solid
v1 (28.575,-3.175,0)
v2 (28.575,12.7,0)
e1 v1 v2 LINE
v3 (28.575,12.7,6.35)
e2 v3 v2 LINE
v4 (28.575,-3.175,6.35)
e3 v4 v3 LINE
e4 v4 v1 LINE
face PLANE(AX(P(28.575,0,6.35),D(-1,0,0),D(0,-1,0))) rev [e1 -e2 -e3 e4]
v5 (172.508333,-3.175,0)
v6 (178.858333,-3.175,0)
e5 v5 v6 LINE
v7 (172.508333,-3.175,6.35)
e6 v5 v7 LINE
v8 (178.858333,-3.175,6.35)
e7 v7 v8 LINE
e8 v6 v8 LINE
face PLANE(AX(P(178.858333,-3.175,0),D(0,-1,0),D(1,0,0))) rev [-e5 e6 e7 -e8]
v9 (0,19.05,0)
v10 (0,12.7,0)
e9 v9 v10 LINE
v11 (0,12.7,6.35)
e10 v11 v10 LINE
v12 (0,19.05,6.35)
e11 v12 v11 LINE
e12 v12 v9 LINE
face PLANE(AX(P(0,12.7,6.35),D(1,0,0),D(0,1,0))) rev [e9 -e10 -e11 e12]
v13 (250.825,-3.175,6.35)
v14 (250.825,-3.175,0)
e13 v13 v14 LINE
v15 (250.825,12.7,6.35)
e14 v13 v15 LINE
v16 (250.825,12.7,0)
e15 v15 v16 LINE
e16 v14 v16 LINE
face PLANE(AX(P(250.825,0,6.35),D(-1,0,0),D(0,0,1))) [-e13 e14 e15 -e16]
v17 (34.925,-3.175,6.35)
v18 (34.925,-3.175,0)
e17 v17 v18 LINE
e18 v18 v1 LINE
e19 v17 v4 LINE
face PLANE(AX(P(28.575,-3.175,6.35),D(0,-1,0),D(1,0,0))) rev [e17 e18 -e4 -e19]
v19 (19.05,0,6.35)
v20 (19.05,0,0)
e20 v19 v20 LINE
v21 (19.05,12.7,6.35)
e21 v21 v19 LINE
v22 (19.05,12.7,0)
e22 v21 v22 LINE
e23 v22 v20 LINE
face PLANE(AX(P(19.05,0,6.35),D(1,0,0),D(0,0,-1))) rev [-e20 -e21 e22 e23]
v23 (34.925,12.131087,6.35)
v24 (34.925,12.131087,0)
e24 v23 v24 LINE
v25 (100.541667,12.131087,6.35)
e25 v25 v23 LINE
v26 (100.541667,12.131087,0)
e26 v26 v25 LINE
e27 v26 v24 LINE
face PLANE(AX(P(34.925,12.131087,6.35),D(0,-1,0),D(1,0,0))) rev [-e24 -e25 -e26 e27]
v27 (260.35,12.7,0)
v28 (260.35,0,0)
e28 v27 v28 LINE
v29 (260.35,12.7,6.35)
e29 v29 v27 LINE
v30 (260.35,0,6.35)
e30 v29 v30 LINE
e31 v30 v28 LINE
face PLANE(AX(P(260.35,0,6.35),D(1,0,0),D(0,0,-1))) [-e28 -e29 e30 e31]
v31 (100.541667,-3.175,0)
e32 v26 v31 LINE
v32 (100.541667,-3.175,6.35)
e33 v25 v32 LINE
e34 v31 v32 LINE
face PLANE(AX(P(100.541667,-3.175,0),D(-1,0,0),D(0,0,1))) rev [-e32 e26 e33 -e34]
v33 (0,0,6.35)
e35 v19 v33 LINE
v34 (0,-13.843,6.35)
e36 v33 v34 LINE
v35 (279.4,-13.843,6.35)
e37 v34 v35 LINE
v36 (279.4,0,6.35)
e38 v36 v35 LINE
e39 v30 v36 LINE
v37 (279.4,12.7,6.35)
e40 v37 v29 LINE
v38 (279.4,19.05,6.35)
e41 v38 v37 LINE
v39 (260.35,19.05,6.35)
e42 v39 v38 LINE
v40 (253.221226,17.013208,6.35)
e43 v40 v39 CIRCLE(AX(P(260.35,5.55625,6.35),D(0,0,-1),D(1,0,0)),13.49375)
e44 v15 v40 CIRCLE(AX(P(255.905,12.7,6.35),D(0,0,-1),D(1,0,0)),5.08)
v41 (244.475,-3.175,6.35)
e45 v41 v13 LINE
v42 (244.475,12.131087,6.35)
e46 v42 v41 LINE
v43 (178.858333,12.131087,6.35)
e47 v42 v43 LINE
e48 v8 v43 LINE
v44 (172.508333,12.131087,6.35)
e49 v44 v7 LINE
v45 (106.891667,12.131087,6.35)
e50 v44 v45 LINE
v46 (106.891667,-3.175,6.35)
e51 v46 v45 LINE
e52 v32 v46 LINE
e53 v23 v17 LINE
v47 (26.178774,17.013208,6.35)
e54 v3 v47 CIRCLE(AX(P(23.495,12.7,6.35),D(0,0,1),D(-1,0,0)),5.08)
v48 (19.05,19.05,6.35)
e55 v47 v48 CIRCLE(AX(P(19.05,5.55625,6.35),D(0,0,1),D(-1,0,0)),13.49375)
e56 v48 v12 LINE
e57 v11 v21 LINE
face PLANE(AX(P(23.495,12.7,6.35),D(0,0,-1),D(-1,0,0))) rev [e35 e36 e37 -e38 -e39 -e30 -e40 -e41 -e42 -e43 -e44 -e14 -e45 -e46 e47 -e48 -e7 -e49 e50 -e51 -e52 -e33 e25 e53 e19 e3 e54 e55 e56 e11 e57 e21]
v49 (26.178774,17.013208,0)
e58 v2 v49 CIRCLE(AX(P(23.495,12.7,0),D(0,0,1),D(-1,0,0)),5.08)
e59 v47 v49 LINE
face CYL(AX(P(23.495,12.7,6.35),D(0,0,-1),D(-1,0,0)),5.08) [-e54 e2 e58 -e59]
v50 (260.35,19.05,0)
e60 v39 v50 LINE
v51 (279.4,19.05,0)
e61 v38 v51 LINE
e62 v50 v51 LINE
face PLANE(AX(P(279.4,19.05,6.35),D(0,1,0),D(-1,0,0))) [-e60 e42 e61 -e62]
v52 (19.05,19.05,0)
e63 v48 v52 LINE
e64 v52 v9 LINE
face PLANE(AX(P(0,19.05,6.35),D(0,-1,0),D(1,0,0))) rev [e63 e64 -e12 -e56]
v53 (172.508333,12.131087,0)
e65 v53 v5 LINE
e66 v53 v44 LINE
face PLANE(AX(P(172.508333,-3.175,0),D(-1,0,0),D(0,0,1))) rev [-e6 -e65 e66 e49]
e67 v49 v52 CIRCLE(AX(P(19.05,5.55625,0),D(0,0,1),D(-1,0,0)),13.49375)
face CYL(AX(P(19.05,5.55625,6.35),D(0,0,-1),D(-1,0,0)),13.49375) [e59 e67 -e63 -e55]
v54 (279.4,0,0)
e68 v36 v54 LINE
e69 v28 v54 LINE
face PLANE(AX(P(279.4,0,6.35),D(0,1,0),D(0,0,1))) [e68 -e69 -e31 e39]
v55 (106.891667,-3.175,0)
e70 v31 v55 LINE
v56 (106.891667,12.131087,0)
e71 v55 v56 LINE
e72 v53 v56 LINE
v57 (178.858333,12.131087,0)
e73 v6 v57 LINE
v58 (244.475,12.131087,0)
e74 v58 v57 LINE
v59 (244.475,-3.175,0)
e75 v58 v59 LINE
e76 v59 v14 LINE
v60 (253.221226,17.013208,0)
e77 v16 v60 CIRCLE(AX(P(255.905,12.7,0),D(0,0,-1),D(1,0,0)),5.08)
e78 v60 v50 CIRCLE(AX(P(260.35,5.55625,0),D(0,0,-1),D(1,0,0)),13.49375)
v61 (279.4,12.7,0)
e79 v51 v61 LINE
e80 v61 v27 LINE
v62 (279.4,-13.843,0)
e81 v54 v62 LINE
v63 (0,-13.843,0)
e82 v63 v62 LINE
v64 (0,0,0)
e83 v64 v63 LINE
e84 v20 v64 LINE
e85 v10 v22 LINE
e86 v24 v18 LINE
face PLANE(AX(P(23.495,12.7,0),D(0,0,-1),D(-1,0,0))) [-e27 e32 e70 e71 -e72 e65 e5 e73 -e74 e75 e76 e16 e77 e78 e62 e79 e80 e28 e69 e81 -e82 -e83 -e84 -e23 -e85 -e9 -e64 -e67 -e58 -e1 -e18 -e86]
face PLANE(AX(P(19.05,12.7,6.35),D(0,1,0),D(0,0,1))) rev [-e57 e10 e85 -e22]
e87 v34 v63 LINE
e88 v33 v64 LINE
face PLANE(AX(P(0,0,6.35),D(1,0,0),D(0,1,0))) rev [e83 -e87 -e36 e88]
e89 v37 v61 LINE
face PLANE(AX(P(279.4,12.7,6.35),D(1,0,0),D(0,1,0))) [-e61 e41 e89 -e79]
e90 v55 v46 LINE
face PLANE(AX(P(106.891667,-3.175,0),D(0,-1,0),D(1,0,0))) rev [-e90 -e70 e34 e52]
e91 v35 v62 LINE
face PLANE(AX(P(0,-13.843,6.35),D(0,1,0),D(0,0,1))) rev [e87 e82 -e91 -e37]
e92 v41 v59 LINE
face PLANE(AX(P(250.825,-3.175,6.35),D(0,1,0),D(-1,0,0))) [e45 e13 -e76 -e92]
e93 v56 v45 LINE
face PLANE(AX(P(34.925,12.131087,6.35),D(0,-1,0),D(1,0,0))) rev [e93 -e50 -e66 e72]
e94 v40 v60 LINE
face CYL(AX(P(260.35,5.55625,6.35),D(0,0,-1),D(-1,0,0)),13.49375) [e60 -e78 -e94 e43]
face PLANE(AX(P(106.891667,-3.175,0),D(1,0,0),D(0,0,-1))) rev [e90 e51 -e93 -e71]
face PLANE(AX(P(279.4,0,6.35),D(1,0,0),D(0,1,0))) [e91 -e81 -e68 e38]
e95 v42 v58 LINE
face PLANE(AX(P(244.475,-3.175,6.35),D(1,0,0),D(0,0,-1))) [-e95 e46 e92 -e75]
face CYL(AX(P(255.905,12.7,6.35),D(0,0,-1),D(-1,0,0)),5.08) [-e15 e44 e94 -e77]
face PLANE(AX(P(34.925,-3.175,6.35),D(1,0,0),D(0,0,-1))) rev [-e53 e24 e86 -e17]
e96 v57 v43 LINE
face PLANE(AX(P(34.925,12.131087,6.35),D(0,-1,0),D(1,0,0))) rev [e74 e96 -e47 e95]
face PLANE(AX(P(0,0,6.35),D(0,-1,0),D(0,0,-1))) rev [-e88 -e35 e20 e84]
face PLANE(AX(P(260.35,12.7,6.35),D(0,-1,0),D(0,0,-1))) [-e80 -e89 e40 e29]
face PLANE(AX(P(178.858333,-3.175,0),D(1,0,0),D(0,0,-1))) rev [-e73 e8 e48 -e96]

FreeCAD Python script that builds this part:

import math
import FreeCAD as App
import Part
import Sketcher
from FreeCAD import Vector
Q = App.Units.Quantity


def add_polygon(sketch, points):
    """Adds a closed chain of lines whose ends are joined by coincident constraints."""
    first, n = sketch.GeometryCount, len(points)
    for a, b in zip(points, points[1:] + points[:1]):
        sketch.addGeometry(Part.LineSegment(App.Vector(*a, 0), App.Vector(*b, 0)), False)
    for i in range(n):
        sketch.addConstraint(Sketcher.Constraint("Coincident", first + i, 2, first + (i + 1) % n, 1))

doc = App.newDocument("Part")
body = doc.addObject("PartDesign::Body", "Body")

# Sketch on XY plane
sketch1 = doc.addObject("Sketcher::SketchObject", "Sketch")
body.addObject(sketch1)
sketch1.AttachmentSupport = (doc.XY_Plane, [""])
sketch1.MapMode = "FlatFace"
sketch1.addGeometry([
    Part.LineSegment(Vector(19.05, 0, 0), Vector(0, 0, 0)),  # 0
    Part.LineSegment(Vector(0, 0, 0), Vector(0, -13.843, 0)),  # 1
    Part.LineSegment(Vector(0, -13.843, 0), Vector(139.7, -13.843, 0)),  # 2
    Part.LineSegment(Vector(139.7, -13.843, 0), Vector(139.7, 12.131087, 0)),  # 3
    Part.LineSegment(Vector(139.7, 12.131087, 0), Vector(34.925, 12.131087, 0)),  # 4
    Part.LineSegment(Vector(34.925, 12.131087, 0), Vector(34.925, -3.175, 0)),  # 5
    Part.LineSegment(Vector(34.925, -3.175, 0), Vector(28.575, -3.175, 0)),  # 6
    Part.LineSegment(Vector(28.575, -3.175, 0), Vector(28.575, 12.7, 0)),  # 7
    Part.ArcOfCircle(Part.Circle(Vector(23.495, 12.7, 0), Vector(0, 0, 1), 5.08), math.radians(0), math.radians(58.109208)),  # 8
    Part.ArcOfCircle(Part.Circle(Vector(19.05, 5.55625, 0), Vector(0, 0, 1), 13.49375), math.radians(58.109208), math.radians(90)),  # 9
    Part.LineSegment(Vector(19.05, 19.05, 0), Vector(0, 19.05, 0)),  # 10
    Part.LineSegment(Vector(0, 19.05, 0), Vector(0, 12.7, 0)),  # 11
    Part.LineSegment(Vector(0, 12.7, 0), Vector(19.05, 12.7, 0)),  # 12
    Part.LineSegment(Vector(19.05, 12.7, 0), Vector(19.05, 0, 0)),  # 13
], False)
sketch1.addConstraint([
    Sketcher.Constraint("Coincident", 0, 2, 1, 1),
    Sketcher.Constraint("Coincident", 1, 2, 2, 1),
    Sketcher.Constraint("Coincident", 2, 2, 3, 1),
    Sketcher.Constraint("Coincident", 3, 2, 4, 1),
    Sketcher.Constraint("Coincident", 4, 2, 5, 1),
    Sketcher.Constraint("Coincident", 5, 2, 6, 1),
    Sketcher.Constraint("Coincident", 6, 2, 7, 1),
    Sketcher.Constraint("Tangent", 7, 2, 8, 1),
    Sketcher.Constraint("Tangent", 8, 2, 9, 1),
    Sketcher.Constraint("Tangent", 9, 2, 10, 1),
    Sketcher.Constraint("Coincident", 10, 2, 11, 1),
    Sketcher.Constraint("Coincident", 11, 2, 12, 1),
    Sketcher.Constraint("Coincident", 12, 2, 13, 1),
    Sketcher.Constraint("Coincident", 13, 2, 0, 1),
    Sketcher.Constraint("Horizontal", 0),
    Sketcher.Constraint("Vertical", 1),
    Sketcher.Constraint("Horizontal", 2),
    Sketcher.Constraint("Vertical", 3),
    Sketcher.Constraint("Horizontal", 4),
    Sketcher.Constraint("Vertical", 5),
    Sketcher.Constraint("Horizontal", 6),
    Sketcher.Constraint("Vertical", 7),
    Sketcher.Constraint("Horizontal", 10),
    Sketcher.Constraint("Vertical", 11),
    Sketcher.Constraint("Horizontal", 12),
    Sketcher.Constraint("Vertical", 13),
    Sketcher.Constraint("Coincident", 0, 2, -1, 1),
    Sketcher.Constraint("PointOnObject", 10, 2, -2),
    Sketcher.Constraint("Horizontal", 7, 2, 11, 2),
    Sketcher.Constraint("Vertical", 9, 2, 12, 2),
    Sketcher.Constraint("Equal", 6, 11),
    Sketcher.Constraint("Radius", 8, Q("0.2 in")),
    Sketcher.Constraint("DistanceX", 2, 1, 2, 2, Q("5.5 in")),
    Sketcher.Constraint("DistanceY", 13, 2, 13, 1, Q("0.5 in")),
    Sketcher.Constraint("Radius", 9, Q("0.53125 in")),
    Sketcher.Constraint("DistanceX", 0, 2, 0, 1, Q("0.75 in")),
    Sketcher.Constraint("DistanceX", 6, 2, 6, 1, Q("0.25 in")),
    Sketcher.Constraint("DistanceY", 1, 2, 1, 1, Q("0.545 in")),
    Sketcher.Constraint("DistanceY", 7, 1, 7, 2, Q("0.625 in")),
    Sketcher.Constraint("DistanceY", 3, 1, 3, 2, Q("25.974087 mm")),
])
pad1 = doc.addObject("PartDesign::Pad", "Pad")
body.addObject(pad1)
pad1.Profile = sketch1
pad1.Length = Q("0.25 in")
doc.recompute()

datumplane = doc.addObject("PartDesign::Plane", "DatumPlane")
body.addObject(datumplane)
datumplane.AttachmentSupport = (doc.YZ_Plane, [""])
datumplane.MapMode = "FlatFace"
datumplane.AttachmentOffset = App.Placement(Vector(0, 0, 5.5 * 25.4), App.Rotation())
mirrored = doc.addObject("PartDesign::Mirrored", "Mirrored")
body.addObject(mirrored)
mirrored.Originals = [pad1]
mirrored.MirrorPlane = (datumplane, [""])
body.Tip = mirrored

# Sketch on XY plane
sketch2 = doc.addObject("Sketcher::SketchObject", "Sketch001")
body.addObject(sketch2)
sketch2.AttachmentSupport = (doc.XY_Plane, [""])
sketch2.MapMode = "FlatFace"
sketch2.AttachmentOffset = App.Placement(Vector(0, 0, 0.25 * 25.4), App.Rotation())
add_polygon(sketch2, [(100.541667, 12.131087), (100.541667, -3.175), (106.891667, -3.175), (106.891667, 12.131087)])  # lines 0-3
add_polygon(sketch2, [(172.508333, 12.131087), (172.508333, -3.175), (178.858333, -3.175), (178.858333, 12.131087)])  # lines 4-7
sketch2.addConstraint([
    Sketcher.Constraint("Vertical", 0),
    Sketcher.Constraint("Horizontal", 1),
    Sketcher.Constraint("Vertical", 2),
    Sketcher.Constraint("Horizontal", 3),
    Sketcher.Constraint("Vertical", 4),
    Sketcher.Constraint("Horizontal", 5),
    Sketcher.Constraint("Vertical", 6),
    Sketcher.Constraint("Horizontal", 7),
    Sketcher.Constraint("Horizontal", 1, 2, 4, 2),
    Sketcher.Constraint("Horizontal", 3, 2, 6, 2),
    Sketcher.Constraint("Equal", 3, 5),
    Sketcher.Constraint("DistanceX", 1, 1, 1, 2, Q("0.25 in")),
    Sketcher.Constraint("DistanceY", 0, 2, -1, 1, Q("0.125 in")),
    Sketcher.Constraint("DistanceY", 0, 2, 0, 1, Q("15.306087 mm")),
    Sketcher.Constraint("DistanceX", -1, 1, 0, 2, Q("100.541667 mm")),
    Sketcher.Constraint("DistanceX", -1, 1, 4, 2, Q("172.508333 mm")),
])
pocket1 = doc.addObject("PartDesign::Pocket", "Pocket")
body.addObject(pocket1)
pocket1.Profile = sketch2
pocket1.Type = "ThroughAll"

doc.recompute()
